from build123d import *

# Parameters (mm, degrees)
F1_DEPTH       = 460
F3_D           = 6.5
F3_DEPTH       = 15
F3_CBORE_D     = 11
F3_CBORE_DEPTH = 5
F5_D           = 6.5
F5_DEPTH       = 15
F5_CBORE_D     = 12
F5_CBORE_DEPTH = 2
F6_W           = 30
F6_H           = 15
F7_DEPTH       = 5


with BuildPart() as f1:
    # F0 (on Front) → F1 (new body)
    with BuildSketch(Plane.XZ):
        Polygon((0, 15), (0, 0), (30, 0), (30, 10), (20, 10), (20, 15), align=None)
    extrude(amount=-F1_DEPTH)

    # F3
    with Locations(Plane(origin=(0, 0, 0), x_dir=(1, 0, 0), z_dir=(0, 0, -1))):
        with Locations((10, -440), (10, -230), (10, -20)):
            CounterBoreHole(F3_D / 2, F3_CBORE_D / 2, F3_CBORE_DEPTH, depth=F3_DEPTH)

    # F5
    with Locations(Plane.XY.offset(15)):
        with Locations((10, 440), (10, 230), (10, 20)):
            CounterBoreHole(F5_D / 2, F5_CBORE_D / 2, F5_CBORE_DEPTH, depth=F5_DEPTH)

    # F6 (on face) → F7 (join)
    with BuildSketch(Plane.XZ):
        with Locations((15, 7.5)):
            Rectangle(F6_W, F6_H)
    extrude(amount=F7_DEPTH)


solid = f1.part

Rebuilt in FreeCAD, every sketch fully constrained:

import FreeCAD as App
import Part
import Sketcher
from FreeCAD import Vector


def add_polygon(sketch, points):
    """Adds a closed chain of lines whose ends are joined by coincident constraints."""
    first, n = sketch.GeometryCount, len(points)
    for a, b in zip(points, points[1:] + points[:1]):
        sketch.addGeometry(Part.LineSegment(App.Vector(*a, 0), App.Vector(*b, 0)), False)
    for i in range(n):
        sketch.addConstraint(Sketcher.Constraint("Coincident", first + i, 2, first + (i + 1) % n, 1))

doc = App.newDocument("Part")
body = doc.addObject("PartDesign::Body", "Body")

# Sketch on XZ plane
sketch1 = doc.addObject("Sketcher::SketchObject", "Sketch")
body.addObject(sketch1)
sketch1.AttachmentSupport = (doc.XZ_Plane, [""])
sketch1.MapMode = "FlatFace"
add_polygon(sketch1, [(0, 15), (0, 0), (30, 0), (30, 10), (20, 10), (20, 15)])  # lines 0-5
sketch1.addConstraint([
    Sketcher.Constraint("Vertical", 0),
    Sketcher.Constraint("Horizontal", 1),
    Sketcher.Constraint("Vertical", 2),
    Sketcher.Constraint("Horizontal", 3),
    Sketcher.Constraint("Vertical", 4),
    Sketcher.Constraint("Horizontal", 5),
    Sketcher.Constraint("Coincident", 0, 2, -1, 1),
    Sketcher.Constraint("Equal", 3, 2),
    Sketcher.Constraint("DistanceX", 1, 1, 1, 2, 30.0),
    Sketcher.Constraint("DistanceX", 3, 2, 3, 1, 10.0),
    Sketcher.Constraint("DistanceY", 0, 2, 0, 1, 15.0),
])
pad1 = doc.addObject("PartDesign::Pad", "Pad")
body.addObject(pad1)
pad1.Profile = sketch1
pad1.Length = 460
pad1.Reversed = True

# Sketch on XY plane
sketch2 = doc.addObject("Sketcher::SketchObject", "Sketch001")
body.addObject(sketch2)
sketch2.AttachmentSupport = (doc.XY_Plane, [""])
sketch2.MapMode = "FlatFace"
sketch2.addGeometry([
    Part.Circle(Vector(10, 440, 0), Vector(0, 0, 1), 3.25),
    Part.Circle(Vector(10, 230, 0), Vector(0, 0, 1), 3.25),
    Part.Circle(Vector(10, 20, 0), Vector(0, 0, 1), 3.25),
], False)
sketch2.addConstraint([
    Sketcher.Constraint("Equal", 0, 1),
    Sketcher.Constraint("Equal", 1, 2),
    Sketcher.Constraint("Vertical", 0, 3, 1, 3),
    Sketcher.Constraint("Vertical", 1, 3, 2, 3),
    Sketcher.Constraint("Diameter", 0, 6.5),
    Sketcher.Constraint("DistanceX", -1, 1, 0, 3, 10.0),
    Sketcher.Constraint("DistanceY", -1, 1, 0, 3, 440.0),
    Sketcher.Constraint("DistanceY", -1, 1, 1, 3, 230.0),
    Sketcher.Constraint("DistanceY", -1, 1, 2, 3, 20.0),
])
doc.recompute()
hole = doc.addObject("PartDesign::Hole", "Hole")
body.addObject(hole)
hole.Profile = sketch2
hole.ThreadType = "None"
hole.Diameter = 6.5
hole.DepthType = "Dimension"
hole.Depth = 15
hole.DrillPoint = "Flat"
hole.HoleCutType = "Counterbore"
hole.HoleCutDiameter = 11
hole.HoleCutDepth = 5
hole.Reversed = True

# Sketch on XY plane
sketch3 = doc.addObject("Sketcher::SketchObject", "Sketch002")
body.addObject(sketch3)
sketch3.AttachmentSupport = (doc.XY_Plane, [""])
sketch3.MapMode = "FlatFace"
sketch3.AttachmentOffset = App.Placement(Vector(0, 0, 15), App.Rotation())
sketch3.addGeometry([
    Part.Circle(Vector(10, 440, 0), Vector(0, 0, 1), 3.25),
    Part.Circle(Vector(10, 230, 0), Vector(0, 0, 1), 3.25),
    Part.Circle(Vector(10, 20, 0), Vector(0, 0, 1), 3.25),
], False)
sketch3.addConstraint([
    Sketcher.Constraint("Equal", 0, 1),
    Sketcher.Constraint("Equal", 1, 2),
    Sketcher.Constraint("Vertical", 0, 3, 1, 3),
    Sketcher.Constraint("Vertical", 1, 3, 2, 3),
    Sketcher.Constraint("Diameter", 0, 6.5),
    Sketcher.Constraint("DistanceX", -1, 1, 0, 3, 10.0),
    Sketcher.Constraint("DistanceY", -1, 1, 0, 3, 440.0),
    Sketcher.Constraint("DistanceY", -1, 1, 1, 3, 230.0),
    Sketcher.Constraint("DistanceY", -1, 1, 2, 3, 20.0),
])
doc.recompute()
hole2 = doc.addObject("PartDesign::Hole", "Hole001")
body.addObject(hole2)
hole2.Profile = sketch3
hole2.ThreadType = "None"
hole2.Diameter = 6.5
hole2.DepthType = "Dimension"
hole2.Depth = 15
hole2.DrillPoint = "Flat"
hole2.HoleCutType = "Counterbore"
hole2.HoleCutDiameter = 12
hole2.HoleCutDepth = 2

# Sketch on XZ plane
sketch4 = doc.addObject("Sketcher::SketchObject", "Sketch003")
body.addObject(sketch4)
sketch4.AttachmentSupport = (doc.XZ_Plane, [""])
sketch4.MapMode = "FlatFace"
add_polygon(sketch4, [(0, 15), (0, 0), (30, 0), (30, 15)])  # lines 0-3
sketch4.addConstraint([
    Sketcher.Constraint("Vertical", 0),
    Sketcher.Constraint("Horizontal", 1),
    Sketcher.Constraint("Vertical", 2),
    Sketcher.Constraint("Horizontal", 3),
    Sketcher.Constraint("Coincident", 0, 2, -1, 1),
    Sketcher.Constraint("DistanceX", 1, 1, 1, 2, 30.0),
    Sketcher.Constraint("DistanceY", 0, 2, 0, 1, 15.0),
])
pad2 = doc.addObject("PartDesign::Pad", "Pad001")
body.addObject(pad2)
pad2.Profile = sketch4
pad2.Length = 5

doc.recompute()
